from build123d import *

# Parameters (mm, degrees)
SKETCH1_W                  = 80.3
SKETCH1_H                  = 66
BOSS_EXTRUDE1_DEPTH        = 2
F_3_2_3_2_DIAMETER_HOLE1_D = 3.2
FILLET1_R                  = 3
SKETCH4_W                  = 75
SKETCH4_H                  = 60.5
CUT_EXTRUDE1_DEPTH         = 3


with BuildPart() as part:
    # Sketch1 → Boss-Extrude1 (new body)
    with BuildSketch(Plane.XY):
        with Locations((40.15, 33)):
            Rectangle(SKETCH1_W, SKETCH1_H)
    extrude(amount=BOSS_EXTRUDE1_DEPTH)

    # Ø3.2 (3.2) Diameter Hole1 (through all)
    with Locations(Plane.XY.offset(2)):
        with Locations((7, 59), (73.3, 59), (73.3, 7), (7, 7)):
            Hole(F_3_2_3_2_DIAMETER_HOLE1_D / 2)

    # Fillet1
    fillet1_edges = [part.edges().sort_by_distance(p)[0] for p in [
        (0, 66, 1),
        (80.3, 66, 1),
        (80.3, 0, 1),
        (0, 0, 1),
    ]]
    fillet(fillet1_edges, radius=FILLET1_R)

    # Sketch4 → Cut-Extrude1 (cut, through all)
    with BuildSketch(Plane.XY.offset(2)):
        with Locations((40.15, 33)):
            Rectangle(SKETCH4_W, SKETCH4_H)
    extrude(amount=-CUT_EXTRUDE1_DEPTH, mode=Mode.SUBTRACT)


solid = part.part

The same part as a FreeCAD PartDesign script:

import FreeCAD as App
import Part
import Sketcher
from FreeCAD import Vector
Q = App.Units.Quantity


def edges_at(feature, points):
    """Names of the edges that pass closest to the given points."""
    edges = feature.Shape.Edges
    near = lambda p: min(range(len(edges)), key=lambda i: edges[i].distToShape(Part.Vertex(*p))[0])
    return sorted({f"Edge{near(p) + 1}" for p in points})


def add_polygon(sketch, points):
    """Adds a closed chain of lines whose ends are joined by coincident constraints."""
    first, n = sketch.GeometryCount, len(points)
    for a, b in zip(points, points[1:] + points[:1]):
        sketch.addGeometry(Part.LineSegment(App.Vector(*a, 0), App.Vector(*b, 0)), False)
    for i in range(n):
        sketch.addConstraint(Sketcher.Constraint("Coincident", first + i, 2, first + (i + 1) % n, 1))

doc = App.newDocument("Part")
body = doc.addObject("PartDesign::Body", "Body")

sketch1 = body.newObject("Sketcher::SketchObject", "Sketch")
sketch1.AttachmentSupport = (doc.getObject("XY_Plane"), [""])
sketch1.MapMode = "FlatFace"
add_polygon(sketch1, [(0, 66), (0, 0), (80, 0), (80, 66)])
sketch1.addConstraint([
    Sketcher.Constraint("Vertical", 0),
    Sketcher.Constraint("Horizontal", 1),
    Sketcher.Constraint("Vertical", 2),
    Sketcher.Constraint("Horizontal", 3),
    Sketcher.Constraint("Coincident", 0, 2, -1, 1),
    Sketcher.Constraint("DistanceY", 0, 2, 0, 1, Q("66 mm")),
    Sketcher.Constraint("DistanceX", 1, 1, 1, 2, Q("80.3 mm")),
])
pad1 = body.newObject("PartDesign::Pad", "Pad")
pad1.Profile = sketch1
pad1.Length = 2

sketch2 = body.newObject("Sketcher::SketchObject", "Sketch001")
sketch2.AttachmentSupport = (doc.getObject("XY_Plane"), [""])
sketch2.MapMode = "FlatFace"
sketch2.AttachmentOffset = App.Placement(Vector(0, 0, 2), App.Rotation())
sketch2.addGeometry([
    Part.Circle(Vector(7, 59, 0), Vector(0, 0, 1), 1.6),
    Part.Circle(Vector(73.3, 59, 0), Vector(0, 0, 1), 1.6),
    Part.Circle(Vector(73.3, 7, 0), Vector(0, 0, 1), 1.6),
    Part.Circle(Vector(7, 7, 0), Vector(0, 0, 1), 1.6),
], False)
sketch2.addConstraint([
    Sketcher.Constraint("Equal", 0, 1),
    Sketcher.Constraint("Equal", 1, 2),
    Sketcher.Constraint("Equal", 2, 3),
    Sketcher.Constraint("Horizontal", 0, 3, 1, 3),
    Sketcher.Constraint("Horizontal", 2, 3, 3, 3),
    Sketcher.Constraint("Vertical", 1, 3, 2, 3),
    Sketcher.Constraint("Vertical", 0, 3, 3, 3),
    Sketcher.Constraint("Diameter", 0, Q("3.2 mm")),
    Sketcher.Constraint("DistanceX", -1, 1, 0, 3, Q("7 mm")),
    Sketcher.Constraint("DistanceY", -1, 1, 0, 3, Q("59 mm")),
    Sketcher.Constraint("DistanceY", -1, 1, 2, 3, Q("7 mm")),
    Sketcher.Constraint("DistanceX", -1, 1, 1, 3, Q("73.3 mm")),
])
doc.recompute()
hole = body.newObject("PartDesign::Hole", "Hole")
hole.Profile = sketch2
hole.ThreadType = "None"
hole.Diameter = 3.2
hole.DepthType = "ThroughAll"
doc.recompute()

fillet = body.newObject("PartDesign::Fillet", "Fillet")
fillet.Base = (hole, edges_at(hole, [
    (0, 66, 1),
    (80.3, 66, 1),
    (80.3, 0, 1),
    (0, 0, 1),
]))
fillet.Radius = 3

sketch3 = body.newObject("Sketcher::SketchObject", "Sketch002")
sketch3.AttachmentSupport = (doc.getObject("XY_Plane"), [""])
sketch3.MapMode = "FlatFace"
sketch3.AttachmentOffset = App.Placement(Vector(0, 0, 2), App.Rotation())
add_polygon(sketch3, [(3, 63), (3, 3), (78, 3), (78, 63)])
sketch3.addConstraint([
    Sketcher.Constraint("Vertical", 0),
    Sketcher.Constraint("Horizontal", 1),
    Sketcher.Constraint("Vertical", 2),
    Sketcher.Constraint("Horizontal", 3),
    Sketcher.Constraint("DistanceX", 1, 1, 1, 2, Q("75 mm")),
    Sketcher.Constraint("DistanceY", 0, 2, 0, 1, Q("60.5 mm")),
    Sketcher.Constraint("DistanceX", -1, 1, 0, 2, Q("2.65 mm")),
    Sketcher.Constraint("DistanceY", -1, 1, 0, 2, Q("2.75 mm")),
])
pocket1 = body.newObject("PartDesign::Pocket", "Pocket")
pocket1.Profile = sketch3
pocket1.Type = "ThroughAll"

doc.recompute()
